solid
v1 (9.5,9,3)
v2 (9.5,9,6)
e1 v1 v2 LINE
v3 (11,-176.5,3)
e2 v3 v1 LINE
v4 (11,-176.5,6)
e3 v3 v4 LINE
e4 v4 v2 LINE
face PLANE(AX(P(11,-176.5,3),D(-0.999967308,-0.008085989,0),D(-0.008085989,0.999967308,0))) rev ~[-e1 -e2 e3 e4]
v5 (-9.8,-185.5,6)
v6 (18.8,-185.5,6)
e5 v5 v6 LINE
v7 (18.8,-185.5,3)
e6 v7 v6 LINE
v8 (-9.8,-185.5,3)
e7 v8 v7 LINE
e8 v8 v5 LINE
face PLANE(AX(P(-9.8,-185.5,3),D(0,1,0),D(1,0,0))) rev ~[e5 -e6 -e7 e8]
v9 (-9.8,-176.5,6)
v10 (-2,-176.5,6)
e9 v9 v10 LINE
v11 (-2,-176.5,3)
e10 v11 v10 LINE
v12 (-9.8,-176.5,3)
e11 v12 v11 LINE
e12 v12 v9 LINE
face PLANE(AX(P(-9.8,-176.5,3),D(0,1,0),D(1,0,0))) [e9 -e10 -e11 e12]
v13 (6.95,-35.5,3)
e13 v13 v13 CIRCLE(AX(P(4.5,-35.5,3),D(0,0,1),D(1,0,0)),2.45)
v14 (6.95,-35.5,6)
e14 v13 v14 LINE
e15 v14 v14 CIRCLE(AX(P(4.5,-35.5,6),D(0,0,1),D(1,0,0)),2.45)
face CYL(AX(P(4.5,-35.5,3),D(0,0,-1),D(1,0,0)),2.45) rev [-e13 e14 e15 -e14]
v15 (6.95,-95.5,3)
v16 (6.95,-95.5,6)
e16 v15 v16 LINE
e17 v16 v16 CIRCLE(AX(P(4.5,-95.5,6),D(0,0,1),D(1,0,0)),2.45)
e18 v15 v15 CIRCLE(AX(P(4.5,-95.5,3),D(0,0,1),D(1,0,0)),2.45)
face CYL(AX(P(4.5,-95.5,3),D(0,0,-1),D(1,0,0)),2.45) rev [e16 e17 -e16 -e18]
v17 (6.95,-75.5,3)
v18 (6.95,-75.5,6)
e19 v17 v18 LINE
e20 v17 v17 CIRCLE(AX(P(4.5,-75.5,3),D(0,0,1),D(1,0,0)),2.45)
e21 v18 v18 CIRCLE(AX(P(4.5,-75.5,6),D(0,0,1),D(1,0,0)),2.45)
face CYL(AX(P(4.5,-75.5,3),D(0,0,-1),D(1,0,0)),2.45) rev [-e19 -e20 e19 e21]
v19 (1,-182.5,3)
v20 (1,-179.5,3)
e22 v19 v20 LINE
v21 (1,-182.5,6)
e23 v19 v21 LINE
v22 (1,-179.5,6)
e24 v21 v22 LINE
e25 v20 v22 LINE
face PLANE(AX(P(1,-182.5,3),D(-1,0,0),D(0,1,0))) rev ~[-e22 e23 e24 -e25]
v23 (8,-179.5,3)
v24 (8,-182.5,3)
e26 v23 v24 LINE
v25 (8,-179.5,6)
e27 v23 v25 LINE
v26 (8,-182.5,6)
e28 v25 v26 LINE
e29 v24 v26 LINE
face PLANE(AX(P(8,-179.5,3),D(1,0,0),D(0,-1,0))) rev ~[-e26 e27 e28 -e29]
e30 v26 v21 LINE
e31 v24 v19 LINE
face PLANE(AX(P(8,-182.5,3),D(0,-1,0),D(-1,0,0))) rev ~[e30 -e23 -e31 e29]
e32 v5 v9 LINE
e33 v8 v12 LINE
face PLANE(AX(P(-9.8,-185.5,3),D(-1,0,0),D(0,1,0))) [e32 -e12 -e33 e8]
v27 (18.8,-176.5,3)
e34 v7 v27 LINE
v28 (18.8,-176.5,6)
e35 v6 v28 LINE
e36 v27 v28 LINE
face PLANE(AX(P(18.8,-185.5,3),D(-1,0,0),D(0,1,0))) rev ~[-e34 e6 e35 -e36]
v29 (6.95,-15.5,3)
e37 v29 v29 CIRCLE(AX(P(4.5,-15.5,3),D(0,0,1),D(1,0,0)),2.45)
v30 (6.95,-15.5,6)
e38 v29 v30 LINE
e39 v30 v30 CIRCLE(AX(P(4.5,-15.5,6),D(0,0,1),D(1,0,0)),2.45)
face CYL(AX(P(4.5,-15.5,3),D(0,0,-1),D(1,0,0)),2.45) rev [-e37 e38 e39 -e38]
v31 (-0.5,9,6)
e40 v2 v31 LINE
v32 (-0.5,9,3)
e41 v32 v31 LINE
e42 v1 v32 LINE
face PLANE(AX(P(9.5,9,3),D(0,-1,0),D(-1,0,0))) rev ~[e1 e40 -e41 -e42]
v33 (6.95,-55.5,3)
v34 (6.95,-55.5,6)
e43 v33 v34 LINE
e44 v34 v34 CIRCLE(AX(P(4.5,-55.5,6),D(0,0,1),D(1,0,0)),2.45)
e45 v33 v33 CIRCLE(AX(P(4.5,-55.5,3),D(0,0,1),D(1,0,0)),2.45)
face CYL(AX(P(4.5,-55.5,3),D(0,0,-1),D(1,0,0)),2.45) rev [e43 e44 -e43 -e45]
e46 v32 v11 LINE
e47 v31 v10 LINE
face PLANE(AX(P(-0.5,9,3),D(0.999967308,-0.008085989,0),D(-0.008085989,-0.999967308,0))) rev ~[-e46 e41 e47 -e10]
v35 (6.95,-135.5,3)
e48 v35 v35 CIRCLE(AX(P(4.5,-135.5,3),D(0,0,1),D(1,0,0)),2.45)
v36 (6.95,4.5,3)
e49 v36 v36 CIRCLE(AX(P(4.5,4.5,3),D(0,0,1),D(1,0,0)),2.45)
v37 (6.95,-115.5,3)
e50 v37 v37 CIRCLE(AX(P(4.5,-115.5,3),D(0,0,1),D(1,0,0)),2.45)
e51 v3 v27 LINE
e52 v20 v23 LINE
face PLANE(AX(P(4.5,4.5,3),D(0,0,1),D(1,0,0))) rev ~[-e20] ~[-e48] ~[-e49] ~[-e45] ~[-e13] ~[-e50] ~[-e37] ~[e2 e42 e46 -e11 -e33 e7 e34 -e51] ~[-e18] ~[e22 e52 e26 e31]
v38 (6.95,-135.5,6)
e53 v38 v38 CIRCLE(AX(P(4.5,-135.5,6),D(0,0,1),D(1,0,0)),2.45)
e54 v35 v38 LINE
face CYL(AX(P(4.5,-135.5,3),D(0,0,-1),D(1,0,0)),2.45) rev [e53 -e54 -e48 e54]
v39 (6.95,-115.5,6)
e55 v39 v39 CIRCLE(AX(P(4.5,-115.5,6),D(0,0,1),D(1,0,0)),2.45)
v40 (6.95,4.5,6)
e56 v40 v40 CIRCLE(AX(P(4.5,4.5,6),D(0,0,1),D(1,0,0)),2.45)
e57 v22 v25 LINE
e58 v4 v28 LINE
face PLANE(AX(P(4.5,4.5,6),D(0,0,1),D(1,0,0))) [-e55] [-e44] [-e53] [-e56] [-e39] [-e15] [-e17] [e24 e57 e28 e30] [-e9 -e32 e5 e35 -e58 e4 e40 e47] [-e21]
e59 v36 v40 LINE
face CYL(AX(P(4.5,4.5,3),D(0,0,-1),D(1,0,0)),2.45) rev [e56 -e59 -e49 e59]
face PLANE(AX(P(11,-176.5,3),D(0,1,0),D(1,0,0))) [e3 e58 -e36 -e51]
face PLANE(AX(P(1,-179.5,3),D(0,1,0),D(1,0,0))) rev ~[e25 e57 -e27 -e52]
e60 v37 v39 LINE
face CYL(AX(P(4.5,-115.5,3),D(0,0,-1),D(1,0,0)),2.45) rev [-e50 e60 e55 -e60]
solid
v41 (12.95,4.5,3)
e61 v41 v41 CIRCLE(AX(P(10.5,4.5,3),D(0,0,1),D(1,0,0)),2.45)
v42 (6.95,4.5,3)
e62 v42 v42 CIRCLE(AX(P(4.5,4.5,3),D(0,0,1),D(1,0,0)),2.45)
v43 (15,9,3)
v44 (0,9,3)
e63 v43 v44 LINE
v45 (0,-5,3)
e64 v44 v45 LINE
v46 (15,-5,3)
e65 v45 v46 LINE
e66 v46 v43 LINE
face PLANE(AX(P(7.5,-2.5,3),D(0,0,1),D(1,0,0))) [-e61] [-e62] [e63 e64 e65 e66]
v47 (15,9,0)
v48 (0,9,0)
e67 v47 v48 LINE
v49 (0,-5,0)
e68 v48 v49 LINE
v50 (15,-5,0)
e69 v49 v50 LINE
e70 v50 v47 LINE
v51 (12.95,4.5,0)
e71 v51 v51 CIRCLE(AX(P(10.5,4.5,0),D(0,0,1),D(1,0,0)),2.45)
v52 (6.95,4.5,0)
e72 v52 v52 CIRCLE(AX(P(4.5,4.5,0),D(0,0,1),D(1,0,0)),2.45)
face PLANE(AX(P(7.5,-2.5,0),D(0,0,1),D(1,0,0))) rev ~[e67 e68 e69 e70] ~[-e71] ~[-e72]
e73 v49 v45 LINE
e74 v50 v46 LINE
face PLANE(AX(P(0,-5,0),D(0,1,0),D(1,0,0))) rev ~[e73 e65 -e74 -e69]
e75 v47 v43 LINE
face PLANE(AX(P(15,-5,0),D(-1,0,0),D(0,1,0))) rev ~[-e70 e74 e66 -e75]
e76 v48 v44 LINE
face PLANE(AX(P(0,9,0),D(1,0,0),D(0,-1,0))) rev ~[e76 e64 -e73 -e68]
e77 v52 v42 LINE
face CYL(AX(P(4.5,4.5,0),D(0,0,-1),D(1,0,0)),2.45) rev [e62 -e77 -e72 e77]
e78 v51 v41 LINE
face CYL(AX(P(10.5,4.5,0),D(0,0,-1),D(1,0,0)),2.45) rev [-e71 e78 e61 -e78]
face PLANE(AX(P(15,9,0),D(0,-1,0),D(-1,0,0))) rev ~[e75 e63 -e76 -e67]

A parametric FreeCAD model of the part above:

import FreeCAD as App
import Part
import Sketcher
from FreeCAD import Vector

doc = App.newDocument("Part")
params = doc.addObject("Spreadsheet::Sheet", "Params")
for row, (alias, value) in enumerate([
    ("sketch1_diameter", "4.9 mm"),
    ("sketch1_width", "15 mm"),
    ("sketch1_height", "14 mm"),
    ("pad1_length", "3 mm"),
    ("sketch2_diameter", "4.9 mm"),
    ("sketch2_width", "10 mm"),
    ("sketch2_width2", "7 mm"),
    ("sketch2_height", "9 mm"),
    ("sketch2_height2", "3 mm"),
    ("pad2_length", "3 mm"),
], start=1):
    params.set(f"A{row}", alias)
    params.set(f"B{row}", "=" + value)
    params.setAlias(f"B{row}", alias)

body = doc.addObject("PartDesign::Body", "Body")

# Sketch on XY plane
sketch1 = doc.addObject("Sketcher::SketchObject", "Sketch")
body.addObject(sketch1)
sketch1.AttachmentSupport = (doc.XY_Plane, [""])
sketch1.MapMode = "FlatFace"
sketch1.addGeometry([
    Part.LineSegment(Vector(0, -5, 0), Vector(15, -5, 0)),  # 0
    Part.LineSegment(Vector(15, -5, 0), Vector(15, 9, 0)),  # 1
    Part.LineSegment(Vector(15, 9, 0), Vector(0, 9, 0)),  # 2
    Part.LineSegment(Vector(0, 9, 0), Vector(0, -5, 0)),  # 3
    Part.Circle(Vector(4.5, 4.5, 0), Vector(0, 0, 1), 2.5),  # 4
    Part.Circle(Vector(10.5, 4.5, 0), Vector(0, 0, 1), 2.5),  # 5
], False)
sketch1.addConstraint([
    Sketcher.Constraint("Coincident", 0, 2, 1, 1),
    Sketcher.Constraint("Coincident", 1, 2, 2, 1),
    Sketcher.Constraint("Coincident", 2, 2, 3, 1),
    Sketcher.Constraint("Coincident", 3, 2, 0, 1),
    Sketcher.Constraint("Horizontal", 0),
    Sketcher.Constraint("Vertical", 1),
    Sketcher.Constraint("Horizontal", 2),
    Sketcher.Constraint("Vertical", 3),
    Sketcher.Constraint("Equal", 4, 5),
    Sketcher.Constraint("PointOnObject", 2, 2, -2),
    Sketcher.Constraint("Horizontal", 4, 3, 5, 3),
    Sketcher.Constraint("Diameter", 4, 4.9),
    Sketcher.Constraint("DistanceX", 0, 1, 0, 2, 15.0),
    Sketcher.Constraint("DistanceY", 1, 1, 1, 2, 14.0),
    Sketcher.Constraint("DistanceY", 0, 2, -1, 1, 5.0),
    Sketcher.Constraint("DistanceX", 4, 3, 5, 3, 6.0),
    Sketcher.Constraint("DistanceX", -1, 1, 4, 3, 4.5),
    Sketcher.Constraint("DistanceY", -1, 1, 4, 3, 4.5),
])
sketch1.setExpression("Constraints[11]", "Params.sketch1_diameter")
sketch1.setExpression("Constraints[12]", "Params.sketch1_width")
sketch1.setExpression("Constraints[13]", "Params.sketch1_height")
pad1 = doc.addObject("PartDesign::Pad", "Pad")
body.addObject(pad1)
pad1.Profile = sketch1
pad1.setExpression("Length", "Params.pad1_length")
body2 = doc.addObject("PartDesign::Body", "Body001")

# Sketch on XY plane
sketch2 = doc.addObject("Sketcher::SketchObject", "Sketch001")
body2.addObject(sketch2)
sketch2.AttachmentSupport = (doc.getObject("XY_Plane001"), [""])
sketch2.MapMode = "FlatFace"
sketch2.AttachmentOffset = App.Placement(Vector(0, 0, 3), App.Rotation())
sketch2.addGeometry([
    Part.LineSegment(Vector(9.5, 9, 0), Vector(-0.5, 9, 0)),  # 0
    Part.LineSegment(Vector(-0.5, 9, 0), Vector(-2, -176.5, 0)),  # 1
    Part.LineSegment(Vector(-2, -176.5, 0), Vector(-9.8, -176.5, 0)),  # 2
    Part.LineSegment(Vector(-9.8, -176.5, 0), Vector(-9.8, -185.5, 0)),  # 3
    Part.LineSegment(Vector(-9.8, -185.5, 0), Vector(18.8, -185.5, 0)),  # 4
    Part.LineSegment(Vector(18.8, -185.5, 0), Vector(18.8, -176.5, 0)),  # 5
    Part.LineSegment(Vector(18.8, -176.5, 0), Vector(11, -176.5, 0)),  # 6
    Part.LineSegment(Vector(11, -176.5, 0), Vector(9.5, 9, 0)),  # 7
    Part.LineSegment(Vector(1, -182.5, 0), Vector(1, -179.5, 0)),  # 8
    Part.LineSegment(Vector(1, -179.5, 0), Vector(8, -179.5, 0)),  # 9
    Part.LineSegment(Vector(8, -179.5, 0), Vector(8, -182.5, 0)),  # 10
    Part.LineSegment(Vector(8, -182.5, 0), Vector(1, -182.5, 0)),  # 11
    Part.Circle(Vector(4.5, -135.5, 0), Vector(0, 0, 1), 2.5),  # 12
    Part.Circle(Vector(4.5, -115.5, 0), Vector(0, 0, 1), 2.5),  # 13
    Part.Circle(Vector(4.5, -95.5, 0), Vector(0, 0, 1), 2.5),  # 14
    Part.Circle(Vector(4.5, -75.5, 0), Vector(0, 0, 1), 2.5),  # 15
    Part.Circle(Vector(4.5, -55.5, 0), Vector(0, 0, 1), 2.5),  # 16
    Part.Circle(Vector(4.5, -35.5, 0), Vector(0, 0, 1), 2.5),  # 17
    Part.Circle(Vector(4.5, -15.5, 0), Vector(0, 0, 1), 2.5),  # 18
    Part.Circle(Vector(4.5, 4.5, 0), Vector(0, 0, 1), 2.5),  # 19
], False)
sketch2.addConstraint([
    Sketcher.Constraint("Coincident", 0, 2, 1, 1),
    Sketcher.Constraint("Coincident", 1, 2, 2, 1),
    Sketcher.Constraint("Coincident", 2, 2, 3, 1),
    Sketcher.Constraint("Coincident", 3, 2, 4, 1),
    Sketcher.Constraint("Coincident", 4, 2, 5, 1),
    Sketcher.Constraint("Coincident", 5, 2, 6, 1),
    Sketcher.Constraint("Coincident", 6, 2, 7, 1),
    Sketcher.Constraint("Coincident", 7, 2, 0, 1),
    Sketcher.Constraint("Coincident", 8, 2, 9, 1),
    Sketcher.Constraint("Coincident", 9, 2, 10, 1),
    Sketcher.Constraint("Coincident", 10, 2, 11, 1),
    Sketcher.Constraint("Coincident", 11, 2, 8, 1),
    Sketcher.Constraint("Horizontal", 0),
    Sketcher.Constraint("Horizontal", 2),
    Sketcher.Constraint("Vertical", 3),
    Sketcher.Constraint("Horizontal", 4),
    Sketcher.Constraint("Vertical", 5),
    Sketcher.Constraint("Horizontal", 6),
    Sketcher.Constraint("Vertical", 8),
    Sketcher.Constraint("Horizontal", 9),
    Sketcher.Constraint("Vertical", 10),
    Sketcher.Constraint("Horizontal", 11),
    Sketcher.Constraint("Equal", 12, 13),
    Sketcher.Constraint("Equal", 13, 14),
    Sketcher.Constraint("Equal", 14, 15),
    Sketcher.Constraint("Equal", 15, 16),
    Sketcher.Constraint("Equal", 16, 17),
    Sketcher.Constraint("Equal", 17, 18),
    Sketcher.Constraint("Equal", 18, 19),
    Sketcher.Constraint("Horizontal", 2, 2, 5, 2),
    Sketcher.Constraint("Vertical", 12, 3, 13, 3),
    Sketcher.Constraint("Vertical", 13, 3, 14, 3),
    Sketcher.Constraint("Vertical", 14, 3, 15, 3),
    Sketcher.Constraint("Vertical", 15, 3, 16, 3),
    Sketcher.Constraint("Vertical", 16, 3, 17, 3),
    Sketcher.Constraint("Vertical", 17, 3, 18, 3),
    Sketcher.Constraint("Vertical", 18, 3, 19, 3),
    Sketcher.Constraint("Equal", 2, 6),
    Sketcher.Constraint("Equal", 1, 7),
    Sketcher.Constraint("Diameter", 12, 4.9),
    Sketcher.Constraint("DistanceX", 0, 2, 0, 1, 10.0),
    Sketcher.Constraint("DistanceX", 9, 1, 9, 2, 7.0),
    Sketcher.Constraint("DistanceY", 3, 2, 3, 1, 9.0),
    Sketcher.Constraint("DistanceY", 8, 1, 8, 2, 3.0),
    Sketcher.Constraint("DistanceX", 2, 2, 2, 1, 7.8),
    Sketcher.Constraint("DistanceX", 4, 1, 4, 2, 28.6),
    Sketcher.Constraint("DistanceY", -1, 1, 0, 2, 9.0),
    Sketcher.Constraint("DistanceX", 1, 2, -1, 1, 2.0),
    Sketcher.Constraint("DistanceX", -1, 1, 8, 2, 1.0),
    Sketcher.Constraint("DistanceY", 12, 3, 13, 3, 20.0),
    Sketcher.Constraint("DistanceY", 13, 3, 14, 3, 20.0),
    Sketcher.Constraint("DistanceY", 14, 3, 15, 3, 20.0),
    Sketcher.Constraint("DistanceY", 15, 3, 16, 3, 20.0),
    Sketcher.Constraint("DistanceY", 16, 3, 17, 3, 20.0),
    Sketcher.Constraint("DistanceY", 17, 3, 18, 3, 20.0),
    Sketcher.Constraint("DistanceY", 18, 3, 19, 3, 20.0),
    Sketcher.Constraint("DistanceX", 0, 2, 19, 3, 5.0),
    Sketcher.Constraint("DistanceY", 1, 2, 12, 3, 41.0),
    Sketcher.Constraint("DistanceY", 8, 2, 1, 2, 3.0),
    Sketcher.Constraint("DistanceY", 12, 3, -1, 1, 135.5),
])
sketch2.setExpression("Constraints[39]", "Params.sketch2_diameter")
sketch2.setExpression("Constraints[40]", "Params.sketch2_width")
sketch2.setExpression("Constraints[41]", "Params.sketch2_width2")
sketch2.setExpression("Constraints[42]", "Params.sketch2_height")
sketch2.setExpression("Constraints[43]", "Params.sketch2_height2")
pad2 = doc.addObject("PartDesign::Pad", "Pad001")
body2.addObject(pad2)
pad2.Profile = sketch2
pad2.setExpression("Length", "Params.pad2_length")

doc.recompute()
